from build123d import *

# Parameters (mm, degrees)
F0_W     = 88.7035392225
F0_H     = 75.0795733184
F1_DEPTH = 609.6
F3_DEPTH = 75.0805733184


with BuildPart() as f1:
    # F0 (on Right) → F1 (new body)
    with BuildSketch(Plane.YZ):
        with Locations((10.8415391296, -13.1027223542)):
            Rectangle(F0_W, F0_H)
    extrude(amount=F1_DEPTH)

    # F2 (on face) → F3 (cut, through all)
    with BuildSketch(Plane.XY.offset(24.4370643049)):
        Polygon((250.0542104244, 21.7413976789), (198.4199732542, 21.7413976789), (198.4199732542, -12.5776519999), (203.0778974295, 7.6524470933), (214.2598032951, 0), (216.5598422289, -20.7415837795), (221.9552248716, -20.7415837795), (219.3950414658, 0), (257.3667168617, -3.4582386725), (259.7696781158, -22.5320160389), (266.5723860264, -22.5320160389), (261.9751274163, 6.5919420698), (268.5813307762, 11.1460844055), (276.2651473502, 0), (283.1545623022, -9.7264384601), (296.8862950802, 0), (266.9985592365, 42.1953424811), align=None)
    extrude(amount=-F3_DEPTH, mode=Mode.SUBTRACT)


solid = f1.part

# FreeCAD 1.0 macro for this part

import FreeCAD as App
import Part
import Sketcher

V = App.Vector
Q = App.Units.Quantity

doc = App.newDocument("Part")
params = doc.addObject("Spreadsheet::Sheet", "Params")
for row, (alias, value) in enumerate([
    ("pad1_length", "24 in"),
], start=1):
    params.set(f"A{row}", alias)
    params.set(f"B{row}", "=" + value)
    params.setAlias(f"B{row}", alias)

body = doc.addObject("PartDesign::Body", "Body")

# Sketch on YZ plane
sketch1 = body.newObject("Sketcher::SketchObject", "Sketch")
sketch1.AttachmentSupport = (doc.getObject("YZ_Plane"), [""])
sketch1.MapMode = "FlatFace"
sketch1.addGeometry([
    Part.LineSegment(V(-34, 24, 0), V(-34, -51, 0)),
    Part.LineSegment(V(-34, -51, 0), V(55, -51, 0)),
    Part.LineSegment(V(55, -51, 0), V(55, 24, 0)),
    Part.LineSegment(V(55, 24, 0), V(-34, 24, 0)),
], False)
sketch1.addConstraint([
    Sketcher.Constraint("Coincident", 0, 2, 1, 1),
    Sketcher.Constraint("Coincident", 1, 2, 2, 1),
    Sketcher.Constraint("Coincident", 2, 2, 3, 1),
    Sketcher.Constraint("Coincident", 3, 2, 0, 1),
    Sketcher.Constraint("Vertical", 0),
    Sketcher.Constraint("Horizontal", 1),
    Sketcher.Constraint("Vertical", 2),
    Sketcher.Constraint("Horizontal", 3),
    Sketcher.Constraint("DistanceX", 1, 1, 1, 2, Q("88.703539 mm")),
    Sketcher.Constraint("DistanceY", 0, 2, 0, 1, Q("75.079573 mm")),
    Sketcher.Constraint("DistanceX", 0, 2, -1, 1, Q("33.51023 mm")),
    Sketcher.Constraint("DistanceY", 0, 2, -1, 1, Q("50.642509 mm")),
])
pad1 = body.newObject("PartDesign::Pad", "Pad")
pad1.Profile = sketch1
pad1.setExpression("Length", "Params.pad1_length")

# Sketch on XY plane
sketch2 = body.newObject("Sketcher::SketchObject", "Sketch001")
sketch2.AttachmentSupport = (doc.getObject("XY_Plane"), [""])
sketch2.MapMode = "FlatFace"
sketch2.AttachmentOffset = App.Placement(V(0, 0, 24.437064), App.Rotation())
sketch2.addGeometry([
    Part.LineSegment(V(250, 22, 0), V(198, 22, 0)),  # 0
    Part.LineSegment(V(198, 22, 0), V(198, -13, 0)),  # 1
    Part.LineSegment(V(198, -13, 0), V(203, 8, 0)),  # 2
    Part.LineSegment(V(203, 8, 0), V(214, 0, 0)),  # 3
    Part.LineSegment(V(214, 0, 0), V(217, -21, 0)),  # 4
    Part.LineSegment(V(217, -21, 0), V(222, -21, 0)),  # 5
    Part.LineSegment(V(222, -21, 0), V(219, 0, 0)),  # 6
    Part.LineSegment(V(219, 0, 0), V(257, -3, 0)),  # 7
    Part.LineSegment(V(257, -3, 0), V(260, -23, 0)),  # 8
    Part.LineSegment(V(260, -23, 0), V(267, -23, 0)),  # 9
    Part.LineSegment(V(267, -23, 0), V(262, 7, 0)),  # 10
    Part.LineSegment(V(262, 7, 0), V(269, 11, 0)),  # 11
    Part.LineSegment(V(269, 11, 0), V(276, 0, 0)),  # 12
    Part.LineSegment(V(276, 0, 0), V(283, -10, 0)),  # 13
    Part.LineSegment(V(283, -10, 0), V(297, 0, 0)),  # 14
    Part.LineSegment(V(297, 0, 0), V(267, 42, 0)),  # 15
    Part.LineSegment(V(267, 42, 0), V(250, 22, 0)),  # 16
], False)
sketch2.addConstraint([
    Sketcher.Constraint("Coincident", 0, 2, 1, 1),
    Sketcher.Constraint("Coincident", 1, 2, 2, 1),
    Sketcher.Constraint("Coincident", 2, 2, 3, 1),
    Sketcher.Constraint("Coincident", 3, 2, 4, 1),
    Sketcher.Constraint("Coincident", 4, 2, 5, 1),
    Sketcher.Constraint("Coincident", 5, 2, 6, 1),
    Sketcher.Constraint("Coincident", 6, 2, 7, 1),
    Sketcher.Constraint("Coincident", 7, 2, 8, 1),
    Sketcher.Constraint("Coincident", 8, 2, 9, 1),
    Sketcher.Constraint("Coincident", 9, 2, 10, 1),
    Sketcher.Constraint("Coincident", 10, 2, 11, 1),
    Sketcher.Constraint("Coincident", 11, 2, 12, 1),
    Sketcher.Constraint("Coincident", 12, 2, 13, 1),
    Sketcher.Constraint("Coincident", 13, 2, 14, 1),
    Sketcher.Constraint("Coincident", 14, 2, 15, 1),
    Sketcher.Constraint("Coincident", 15, 2, 16, 1),
    Sketcher.Constraint("Coincident", 16, 2, 0, 1),
    Sketcher.Constraint("Horizontal", 0),
    Sketcher.Constraint("Vertical", 1),
    Sketcher.Constraint("Horizontal", 5),
    Sketcher.Constraint("Horizontal", 9),
    Sketcher.Constraint("PointOnObject", 3, 2, -1),
    Sketcher.Constraint("PointOnObject", 6, 2, -1),
    Sketcher.Constraint("PointOnObject", 12, 2, -1),
    Sketcher.Constraint("PointOnObject", 14, 2, -1),
    Sketcher.Constraint("Perpendicular", 11, 12),
    Sketcher.Constraint("Perpendicular", 13, 14),
    Sketcher.Constraint("Perpendicular", 14, 15),
    Sketcher.Constraint("Distance", 16, Q("1.0456998 in")),
    Sketcher.Constraint("DistanceX", -1, 1, 6, 2, Q("8.6376001 in")),
    Sketcher.Constraint("DistanceY", 1, 2, 1, 1, Q("34.31905 mm")),
    Sketcher.Constraint("DistanceY", 1, 2, 2, 2, Q("20.230099 mm")),
    Sketcher.Constraint("DistanceX", 4, 2, 6, 2, Q("2.835199 mm")),
    Sketcher.Constraint("DistanceY", 9, 2, 11, 2, Q("33.6781 mm")),
    Sketcher.Constraint("DistanceY", 13, 2, 7, 2, Q("6.2682 mm")),
    Sketcher.Constraint("DistanceY", 10, 2, 15, 2, Q("35.6034 mm")),
    Sketcher.Constraint("Distance", 2, Q("20.759412 mm")),
    Sketcher.Constraint("Distance", 3, Q("13.549722 mm")),
    Sketcher.Constraint("Distance", 4, Q("20.86872 mm")),
    Sketcher.Constraint("Distance", 6, Q("20.898991 mm")),
    Sketcher.Constraint("Distance", 7, Q("38.128828 mm")),
    Sketcher.Constraint("Distance", 14, Q("16.82748 mm")),
    Sketcher.Constraint("DistanceX", 0, 2, 0, 1, Q("51.634237 mm")),
    Sketcher.Constraint("DistanceX", 5, 1, 5, 2, Q("5.395383 mm")),
    Sketcher.Constraint("DistanceX", 9, 1, 9, 2, Q("6.802708 mm")),
    Sketcher.Constraint("DistanceY", 7, 2, -1, 1, Q("3.458239 mm")),
    Sketcher.Constraint("DistanceX", -1, 1, 8, 2, Q("259.769678 mm")),
    Sketcher.Constraint("DistanceX", -1, 1, 11, 2, Q("268.581331 mm")),
    Sketcher.Constraint("DistanceX", -1, 1, 15, 2, Q("266.998559 mm")),
    Sketcher.Constraint("DistanceX", -1, 1, 16, 2, Q("250.05421 mm")),
    Sketcher.Constraint("DistanceX", 7, 2, 10, 2, Q("4.608411 mm")),
])
pocket1 = body.newObject("PartDesign::Pocket", "Pocket")
pocket1.Profile = sketch2
pocket1.Type = "ThroughAll"

doc.recompute()
